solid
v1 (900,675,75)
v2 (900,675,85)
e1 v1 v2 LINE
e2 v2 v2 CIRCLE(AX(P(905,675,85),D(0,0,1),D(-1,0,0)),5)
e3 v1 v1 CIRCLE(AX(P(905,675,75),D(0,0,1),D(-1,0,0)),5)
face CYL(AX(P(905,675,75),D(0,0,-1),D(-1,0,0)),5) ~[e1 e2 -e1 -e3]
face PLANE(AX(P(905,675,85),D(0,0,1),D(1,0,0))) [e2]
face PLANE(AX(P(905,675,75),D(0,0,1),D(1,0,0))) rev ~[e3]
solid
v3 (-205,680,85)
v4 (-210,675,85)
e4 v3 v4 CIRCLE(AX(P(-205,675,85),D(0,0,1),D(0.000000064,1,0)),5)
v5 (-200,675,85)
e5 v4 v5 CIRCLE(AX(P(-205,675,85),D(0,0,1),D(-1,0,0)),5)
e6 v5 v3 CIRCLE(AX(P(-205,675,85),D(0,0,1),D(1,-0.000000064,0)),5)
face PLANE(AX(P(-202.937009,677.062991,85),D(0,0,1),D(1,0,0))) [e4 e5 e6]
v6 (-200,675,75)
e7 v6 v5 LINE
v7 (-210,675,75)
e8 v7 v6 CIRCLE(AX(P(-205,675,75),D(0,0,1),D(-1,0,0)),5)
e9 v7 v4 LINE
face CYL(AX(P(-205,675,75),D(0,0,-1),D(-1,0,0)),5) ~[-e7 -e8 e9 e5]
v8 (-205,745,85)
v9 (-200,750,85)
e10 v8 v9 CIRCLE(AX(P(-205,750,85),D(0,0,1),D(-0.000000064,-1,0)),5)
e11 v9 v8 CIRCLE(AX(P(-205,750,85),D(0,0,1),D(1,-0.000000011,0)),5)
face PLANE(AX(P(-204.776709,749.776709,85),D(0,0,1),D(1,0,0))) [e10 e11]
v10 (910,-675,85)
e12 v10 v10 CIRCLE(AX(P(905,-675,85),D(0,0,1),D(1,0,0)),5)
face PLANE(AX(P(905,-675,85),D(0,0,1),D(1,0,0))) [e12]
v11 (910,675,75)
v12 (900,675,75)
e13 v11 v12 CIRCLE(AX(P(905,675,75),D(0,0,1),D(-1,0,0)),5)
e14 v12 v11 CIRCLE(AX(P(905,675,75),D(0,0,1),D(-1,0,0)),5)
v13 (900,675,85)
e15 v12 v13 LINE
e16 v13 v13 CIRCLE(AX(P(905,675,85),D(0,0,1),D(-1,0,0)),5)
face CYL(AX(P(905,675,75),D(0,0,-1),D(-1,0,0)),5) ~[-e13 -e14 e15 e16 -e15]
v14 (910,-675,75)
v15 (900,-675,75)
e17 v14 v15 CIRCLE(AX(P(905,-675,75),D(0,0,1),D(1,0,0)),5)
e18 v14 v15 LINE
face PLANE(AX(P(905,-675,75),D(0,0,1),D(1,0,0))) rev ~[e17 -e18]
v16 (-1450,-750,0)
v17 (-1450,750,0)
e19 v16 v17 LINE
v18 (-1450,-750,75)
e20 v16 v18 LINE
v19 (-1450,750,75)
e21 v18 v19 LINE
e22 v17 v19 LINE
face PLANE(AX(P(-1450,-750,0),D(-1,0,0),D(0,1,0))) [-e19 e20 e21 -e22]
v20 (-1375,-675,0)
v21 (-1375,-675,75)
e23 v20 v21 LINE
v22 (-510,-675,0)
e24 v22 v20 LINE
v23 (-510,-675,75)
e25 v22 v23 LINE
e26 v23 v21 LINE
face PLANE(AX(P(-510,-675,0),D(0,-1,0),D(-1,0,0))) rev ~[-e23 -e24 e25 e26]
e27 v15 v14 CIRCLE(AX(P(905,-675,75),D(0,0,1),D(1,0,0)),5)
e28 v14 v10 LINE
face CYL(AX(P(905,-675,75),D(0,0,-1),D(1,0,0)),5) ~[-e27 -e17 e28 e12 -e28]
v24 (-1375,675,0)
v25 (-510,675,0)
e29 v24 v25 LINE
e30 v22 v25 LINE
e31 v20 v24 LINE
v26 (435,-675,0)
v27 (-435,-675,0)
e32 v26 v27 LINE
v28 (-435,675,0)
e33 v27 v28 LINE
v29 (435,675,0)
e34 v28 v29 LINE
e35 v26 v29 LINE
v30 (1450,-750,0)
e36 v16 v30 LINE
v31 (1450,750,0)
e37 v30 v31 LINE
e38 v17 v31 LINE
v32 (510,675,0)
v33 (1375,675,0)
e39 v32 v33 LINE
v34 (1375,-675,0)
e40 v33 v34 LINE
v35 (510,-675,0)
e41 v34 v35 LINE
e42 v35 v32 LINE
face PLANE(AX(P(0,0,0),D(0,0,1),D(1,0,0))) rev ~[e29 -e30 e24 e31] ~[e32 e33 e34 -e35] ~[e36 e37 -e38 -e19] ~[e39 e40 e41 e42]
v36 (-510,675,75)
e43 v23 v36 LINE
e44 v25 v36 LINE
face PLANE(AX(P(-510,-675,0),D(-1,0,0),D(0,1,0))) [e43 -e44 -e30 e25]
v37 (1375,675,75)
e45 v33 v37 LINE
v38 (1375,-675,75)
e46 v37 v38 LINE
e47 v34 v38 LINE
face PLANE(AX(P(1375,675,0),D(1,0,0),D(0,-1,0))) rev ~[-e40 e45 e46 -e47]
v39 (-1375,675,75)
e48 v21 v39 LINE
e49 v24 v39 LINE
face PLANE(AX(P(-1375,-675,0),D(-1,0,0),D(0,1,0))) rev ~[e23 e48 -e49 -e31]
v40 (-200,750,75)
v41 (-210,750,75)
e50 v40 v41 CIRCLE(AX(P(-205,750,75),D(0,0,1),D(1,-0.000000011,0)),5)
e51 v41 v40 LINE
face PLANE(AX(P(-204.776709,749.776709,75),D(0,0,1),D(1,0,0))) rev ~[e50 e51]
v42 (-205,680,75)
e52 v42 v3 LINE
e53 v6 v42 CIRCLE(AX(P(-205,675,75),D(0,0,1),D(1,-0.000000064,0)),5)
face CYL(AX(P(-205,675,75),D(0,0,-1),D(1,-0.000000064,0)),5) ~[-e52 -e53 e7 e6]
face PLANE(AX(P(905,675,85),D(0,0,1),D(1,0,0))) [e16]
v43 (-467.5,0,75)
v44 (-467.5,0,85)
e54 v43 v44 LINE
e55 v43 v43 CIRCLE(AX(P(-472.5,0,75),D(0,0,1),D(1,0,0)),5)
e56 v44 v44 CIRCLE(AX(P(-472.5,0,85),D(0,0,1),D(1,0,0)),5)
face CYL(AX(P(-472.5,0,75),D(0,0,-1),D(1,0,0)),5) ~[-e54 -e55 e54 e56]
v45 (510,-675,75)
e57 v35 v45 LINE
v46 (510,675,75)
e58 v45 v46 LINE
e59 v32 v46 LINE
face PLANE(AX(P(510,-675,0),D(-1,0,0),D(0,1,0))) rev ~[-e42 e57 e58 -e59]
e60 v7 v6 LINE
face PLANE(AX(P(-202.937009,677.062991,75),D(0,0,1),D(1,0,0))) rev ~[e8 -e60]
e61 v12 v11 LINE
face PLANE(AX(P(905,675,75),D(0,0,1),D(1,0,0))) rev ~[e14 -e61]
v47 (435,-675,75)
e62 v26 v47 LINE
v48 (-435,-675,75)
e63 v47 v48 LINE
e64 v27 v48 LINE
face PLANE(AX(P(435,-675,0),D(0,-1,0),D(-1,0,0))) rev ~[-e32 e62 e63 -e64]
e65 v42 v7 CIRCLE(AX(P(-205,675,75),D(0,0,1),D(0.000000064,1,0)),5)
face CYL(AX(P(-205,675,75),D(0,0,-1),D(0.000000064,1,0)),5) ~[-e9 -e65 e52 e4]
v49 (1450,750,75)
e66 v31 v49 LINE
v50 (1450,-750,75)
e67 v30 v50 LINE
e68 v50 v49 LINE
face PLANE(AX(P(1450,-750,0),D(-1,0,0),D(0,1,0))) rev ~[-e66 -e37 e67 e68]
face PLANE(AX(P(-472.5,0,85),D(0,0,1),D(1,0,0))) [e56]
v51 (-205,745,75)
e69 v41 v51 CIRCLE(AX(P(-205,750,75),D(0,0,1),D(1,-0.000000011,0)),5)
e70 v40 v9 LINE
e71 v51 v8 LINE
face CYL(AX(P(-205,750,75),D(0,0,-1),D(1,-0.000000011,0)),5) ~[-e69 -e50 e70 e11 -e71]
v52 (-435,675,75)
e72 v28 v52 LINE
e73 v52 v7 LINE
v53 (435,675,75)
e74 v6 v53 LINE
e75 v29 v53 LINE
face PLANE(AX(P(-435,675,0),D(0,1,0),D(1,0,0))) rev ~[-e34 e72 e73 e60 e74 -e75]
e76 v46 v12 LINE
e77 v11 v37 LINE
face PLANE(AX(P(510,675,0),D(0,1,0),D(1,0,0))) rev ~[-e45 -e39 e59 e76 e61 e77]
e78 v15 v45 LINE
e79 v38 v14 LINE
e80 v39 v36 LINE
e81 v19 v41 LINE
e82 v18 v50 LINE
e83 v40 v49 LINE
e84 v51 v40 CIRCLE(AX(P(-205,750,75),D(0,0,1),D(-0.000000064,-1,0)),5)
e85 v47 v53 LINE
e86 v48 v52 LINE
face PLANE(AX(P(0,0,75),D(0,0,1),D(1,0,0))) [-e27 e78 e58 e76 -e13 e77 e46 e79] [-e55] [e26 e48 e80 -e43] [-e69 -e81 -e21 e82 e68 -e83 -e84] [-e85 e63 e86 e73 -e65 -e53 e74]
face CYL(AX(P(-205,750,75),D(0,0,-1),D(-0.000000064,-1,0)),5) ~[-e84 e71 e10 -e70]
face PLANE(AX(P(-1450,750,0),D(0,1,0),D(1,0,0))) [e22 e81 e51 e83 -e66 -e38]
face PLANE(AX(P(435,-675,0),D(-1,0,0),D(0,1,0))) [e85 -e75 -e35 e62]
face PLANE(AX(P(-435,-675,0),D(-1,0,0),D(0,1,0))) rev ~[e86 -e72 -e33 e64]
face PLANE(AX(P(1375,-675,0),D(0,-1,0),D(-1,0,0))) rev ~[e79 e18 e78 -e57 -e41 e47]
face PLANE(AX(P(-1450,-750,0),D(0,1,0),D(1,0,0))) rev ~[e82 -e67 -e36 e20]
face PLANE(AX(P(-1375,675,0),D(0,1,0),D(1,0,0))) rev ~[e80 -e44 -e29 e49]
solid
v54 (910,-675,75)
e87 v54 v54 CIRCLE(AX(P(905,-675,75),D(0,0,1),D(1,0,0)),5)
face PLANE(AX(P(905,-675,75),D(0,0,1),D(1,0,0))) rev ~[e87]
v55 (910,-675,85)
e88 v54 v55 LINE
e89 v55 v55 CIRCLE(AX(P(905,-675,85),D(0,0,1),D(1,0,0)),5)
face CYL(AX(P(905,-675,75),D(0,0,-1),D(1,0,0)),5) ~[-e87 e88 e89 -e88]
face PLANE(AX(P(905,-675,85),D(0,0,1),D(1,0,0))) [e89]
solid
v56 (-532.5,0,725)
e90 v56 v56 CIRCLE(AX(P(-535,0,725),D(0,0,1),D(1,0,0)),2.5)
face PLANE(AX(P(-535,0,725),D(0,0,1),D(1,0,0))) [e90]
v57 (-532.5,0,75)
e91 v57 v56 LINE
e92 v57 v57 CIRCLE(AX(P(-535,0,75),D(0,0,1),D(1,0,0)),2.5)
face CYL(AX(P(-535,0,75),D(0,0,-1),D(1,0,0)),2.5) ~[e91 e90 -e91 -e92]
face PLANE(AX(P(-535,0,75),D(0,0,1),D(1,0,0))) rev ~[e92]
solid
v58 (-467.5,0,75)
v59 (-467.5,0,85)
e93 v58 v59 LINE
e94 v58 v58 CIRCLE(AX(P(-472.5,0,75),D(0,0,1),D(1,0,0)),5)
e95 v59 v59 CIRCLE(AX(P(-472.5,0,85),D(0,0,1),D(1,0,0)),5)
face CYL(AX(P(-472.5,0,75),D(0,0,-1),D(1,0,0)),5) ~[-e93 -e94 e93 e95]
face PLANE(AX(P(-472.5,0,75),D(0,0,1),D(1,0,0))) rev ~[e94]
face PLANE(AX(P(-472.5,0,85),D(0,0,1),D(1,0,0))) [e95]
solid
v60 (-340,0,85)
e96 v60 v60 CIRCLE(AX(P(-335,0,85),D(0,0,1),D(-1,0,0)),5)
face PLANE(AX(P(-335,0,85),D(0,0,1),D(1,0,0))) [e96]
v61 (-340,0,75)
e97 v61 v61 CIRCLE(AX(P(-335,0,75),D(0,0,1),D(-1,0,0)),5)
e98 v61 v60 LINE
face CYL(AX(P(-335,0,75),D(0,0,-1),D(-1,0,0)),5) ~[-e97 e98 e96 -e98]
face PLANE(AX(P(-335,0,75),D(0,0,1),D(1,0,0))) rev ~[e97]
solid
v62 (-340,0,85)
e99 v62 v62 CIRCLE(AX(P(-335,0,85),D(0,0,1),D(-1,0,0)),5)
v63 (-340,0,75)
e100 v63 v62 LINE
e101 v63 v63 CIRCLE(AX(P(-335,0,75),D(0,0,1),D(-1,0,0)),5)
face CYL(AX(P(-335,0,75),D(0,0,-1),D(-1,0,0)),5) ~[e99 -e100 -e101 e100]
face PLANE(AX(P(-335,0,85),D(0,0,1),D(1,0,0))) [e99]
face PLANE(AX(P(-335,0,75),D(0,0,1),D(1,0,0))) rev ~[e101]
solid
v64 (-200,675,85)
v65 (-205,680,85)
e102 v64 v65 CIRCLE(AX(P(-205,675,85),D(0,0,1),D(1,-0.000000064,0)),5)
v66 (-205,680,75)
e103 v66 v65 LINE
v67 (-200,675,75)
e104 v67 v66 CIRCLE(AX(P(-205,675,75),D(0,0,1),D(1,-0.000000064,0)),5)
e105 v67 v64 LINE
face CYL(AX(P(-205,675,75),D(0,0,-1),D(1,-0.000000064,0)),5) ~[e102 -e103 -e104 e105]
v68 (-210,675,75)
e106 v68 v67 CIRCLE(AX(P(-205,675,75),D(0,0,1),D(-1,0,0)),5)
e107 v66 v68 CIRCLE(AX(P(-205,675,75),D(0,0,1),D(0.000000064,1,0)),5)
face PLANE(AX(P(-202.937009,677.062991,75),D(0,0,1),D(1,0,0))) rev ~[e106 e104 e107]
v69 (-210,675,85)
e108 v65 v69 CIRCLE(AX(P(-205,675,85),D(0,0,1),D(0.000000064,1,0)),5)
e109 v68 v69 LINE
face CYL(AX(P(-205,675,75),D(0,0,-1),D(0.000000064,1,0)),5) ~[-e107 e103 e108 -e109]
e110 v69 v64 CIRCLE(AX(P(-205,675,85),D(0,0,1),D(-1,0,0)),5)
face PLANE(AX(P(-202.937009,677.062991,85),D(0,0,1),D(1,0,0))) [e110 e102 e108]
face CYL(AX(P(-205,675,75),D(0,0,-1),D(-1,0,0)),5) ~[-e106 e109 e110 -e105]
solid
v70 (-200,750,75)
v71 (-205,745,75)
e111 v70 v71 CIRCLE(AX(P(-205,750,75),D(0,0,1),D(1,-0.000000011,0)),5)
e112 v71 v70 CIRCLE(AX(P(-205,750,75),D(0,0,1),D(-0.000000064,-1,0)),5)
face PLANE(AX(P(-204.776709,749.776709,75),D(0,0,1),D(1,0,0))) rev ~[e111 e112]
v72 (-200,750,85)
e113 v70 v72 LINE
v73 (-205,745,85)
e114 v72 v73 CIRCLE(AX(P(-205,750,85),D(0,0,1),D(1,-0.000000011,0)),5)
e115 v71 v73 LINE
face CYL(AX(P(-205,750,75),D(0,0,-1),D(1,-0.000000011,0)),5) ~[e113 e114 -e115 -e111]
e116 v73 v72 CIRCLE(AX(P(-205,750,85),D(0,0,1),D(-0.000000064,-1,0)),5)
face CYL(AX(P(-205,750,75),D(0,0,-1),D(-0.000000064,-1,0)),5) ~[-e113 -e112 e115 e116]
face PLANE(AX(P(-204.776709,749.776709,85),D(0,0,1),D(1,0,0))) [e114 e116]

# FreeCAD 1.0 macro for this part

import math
import FreeCAD as App
import Part
import Sketcher
from FreeCAD import Vector
Q = App.Units.Quantity


def add_polygon(sketch, points):
    """Adds a closed chain of lines whose ends are joined by coincident constraints."""
    first, n = sketch.GeometryCount, len(points)
    for a, b in zip(points, points[1:] + points[:1]):
        sketch.addGeometry(Part.LineSegment(App.Vector(*a, 0), App.Vector(*b, 0)), False)
    for i in range(n):
        sketch.addConstraint(Sketcher.Constraint("Coincident", first + i, 2, first + (i + 1) % n, 1))

doc = App.newDocument("Part")
body = doc.addObject("PartDesign::Body", "Body")
body.AllowCompound = True

sketch1 = body.newObject("Sketcher::SketchObject", "Sketch")
sketch1.AttachmentSupport = (doc.getObject("XY_Plane"), [""])
sketch1.MapMode = "FlatFace"
add_polygon(sketch1, [(-1450, 750), (-1450, -750), (1450, -750), (1450, 750)])
add_polygon(sketch1, [(1375, -675), (510, -675), (510, 675), (1375, 675)])
add_polygon(sketch1, [(435, -675), (-435, -675), (-435, 675), (435, 675)])
add_polygon(sketch1, [(-510, -675), (-1375, -675), (-1375, 675), (-510, 675)])
sketch1.addConstraint(Sketcher.Constraint("Vertical", 0))
sketch1.addConstraint(Sketcher.Constraint("Horizontal", 1))
sketch1.addConstraint(Sketcher.Constraint("Vertical", 2))
sketch1.addConstraint(Sketcher.Constraint("Horizontal", 3))
sketch1.addConstraint(Sketcher.Constraint("Horizontal", 4))
sketch1.addConstraint(Sketcher.Constraint("Vertical", 5))
sketch1.addConstraint(Sketcher.Constraint("Horizontal", 6))
sketch1.addConstraint(Sketcher.Constraint("Vertical", 7))
sketch1.addConstraint(Sketcher.Constraint("Horizontal", 8))
sketch1.addConstraint(Sketcher.Constraint("Vertical", 9))
sketch1.addConstraint(Sketcher.Constraint("Horizontal", 10))
sketch1.addConstraint(Sketcher.Constraint("Vertical", 11))
sketch1.addConstraint(Sketcher.Constraint("Horizontal", 12))
sketch1.addConstraint(Sketcher.Constraint("Vertical", 13))
sketch1.addConstraint(Sketcher.Constraint("Horizontal", 14))
sketch1.addConstraint(Sketcher.Constraint("Vertical", 15))
sketch1.addConstraint(Sketcher.Constraint("Symmetric", 0, 2, 2, 2, -1, 1))
sketch1.addConstraint(Sketcher.Constraint("Symmetric", 8, 2, 10, 2, -1, 1))
sketch1.addConstraint(Sketcher.Constraint("Symmetric", 6, 2, 12, 2, -1, 1))
sketch1.addConstraint(Sketcher.Constraint("Symmetric", 4, 2, 14, 2, -1, 1))
sketch1.addConstraint(Sketcher.Constraint("Horizontal", 7, 2, 8, 2))
sketch1.addConstraint(Sketcher.Constraint("Horizontal", 6, 2, 9, 2))
sketch1.addConstraint(Sketcher.Constraint("DistanceX", 1, 1, 1, 2, Q("2900 mm")))
sketch1.addConstraint(Sketcher.Constraint("DistanceX", 4, 2, 4, 1, Q("865 mm")))
sketch1.addConstraint(Sketcher.Constraint("DistanceX", 8, 2, 8, 1, Q("870 mm")))
sketch1.addConstraint(Sketcher.Constraint("DistanceY", 0, 2, 0, 1, Q("1500 mm")))
sketch1.addConstraint(Sketcher.Constraint("DistanceY", 5, 1, 5, 2, Q("1350 mm")))
sketch1.addConstraint(Sketcher.Constraint("DistanceX", -1, 1, 4, 2, Q("510 mm")))
pad1 = body.newObject("PartDesign::Pad", "Pad")
pad1.Profile = sketch1
pad1.Length = 75

sketch2 = body.newObject("Sketcher::SketchObject", "Sketch001")
sketch2.AttachmentSupport = (doc.getObject("XY_Plane"), [""])
sketch2.MapMode = "FlatFace"
sketch2.AttachmentOffset = App.Placement(Vector(0, 0, 75), App.Rotation())
sketch2.addGeometry(Part.Circle(Vector(-472.5, 0, 0), Vector(0, 0, 1), 5), False)
sketch2.addGeometry(Part.Circle(Vector(-335, 0, 0), Vector(0, 0, 1), 5), False)
sketch2.addGeometry(Part.ArcOfCircle(Part.Circle(Vector(-205, 675, 0), Vector(0, 0, 1), 5), math.radians(180), math.radians(360)), False)
sketch2.addGeometry(Part.ArcOfCircle(Part.Circle(Vector(-205, 675, 0), Vector(0, 0, 1), 5), math.radians(0), math.radians(90)), False)
sketch2.addGeometry(Part.ArcOfCircle(Part.Circle(Vector(-205, 675, 0), Vector(0, 0, 1), 5), math.radians(90), math.radians(180)), False)
sketch2.addGeometry(Part.Circle(Vector(905, 675, 0), Vector(0, 0, 1), 5), False)
sketch2.addGeometry(Part.ArcOfCircle(Part.Circle(Vector(-205, 750, 0), Vector(0, 0, 1), 5), math.radians(0), math.radians(270)), False)
sketch2.addGeometry(Part.ArcOfCircle(Part.Circle(Vector(-205, 750, 0), Vector(0, 0, 1), 5), math.radians(-90), math.radians(0)), False)
sketch2.addGeometry(Part.Circle(Vector(905, -675, 0), Vector(0, 0, 1), 5), False)
sketch2.addConstraint(Sketcher.Constraint("Tangent", 2, 2, 3, 1))
sketch2.addConstraint(Sketcher.Constraint("Tangent", 3, 2, 4, 1))
sketch2.addConstraint(Sketcher.Constraint("Tangent", 4, 2, 2, 1))
sketch2.addConstraint(Sketcher.Constraint("Tangent", 6, 1, 7, 2))
sketch2.addConstraint(Sketcher.Constraint("Coincident", 7, 1, 6, 2))
sketch2.addConstraint(Sketcher.Constraint("Equal", 0, 1))
sketch2.addConstraint(Sketcher.Constraint("Equal", 1, 2))
sketch2.addConstraint(Sketcher.Constraint("Equal", 4, 5))
sketch2.addConstraint(Sketcher.Constraint("Equal", 5, 6))
sketch2.addConstraint(Sketcher.Constraint("Equal", 7, 8))
sketch2.addConstraint(Sketcher.Constraint("Symmetric", 5, 3, 8, 3, -1))
sketch2.addConstraint(Sketcher.Constraint("PointOnObject", 0, 3, -1))
sketch2.addConstraint(Sketcher.Constraint("PointOnObject", 1, 3, -1))
sketch2.addConstraint(Sketcher.Constraint("Horizontal", 4, 3, 5, 3))
sketch2.addConstraint(Sketcher.Constraint("Horizontal", 5, 3, 2, 2))
sketch2.addConstraint(Sketcher.Constraint("Horizontal", 2, 2, 4, 2))
sketch2.addConstraint(Sketcher.Constraint("Horizontal", 7, 3, 6, 1))
sketch2.addConstraint(Sketcher.Constraint("Vertical", 4, 3, 6, 3))
sketch2.addConstraint(Sketcher.Constraint("Vertical", 7, 3, 3, 2))
sketch2.addConstraint(Sketcher.Constraint("Vertical", 3, 2, 7, 1))
sketch2.addConstraint(Sketcher.Constraint("Diameter", 0, Q("10 mm")))
sketch2.addConstraint(Sketcher.Constraint("DistanceX", 1, 3, -1, 1, Q("335 mm")))
sketch2.addConstraint(Sketcher.Constraint("DistanceX", 2, 3, -1, 1, Q("205 mm")))
sketch2.addConstraint(Sketcher.Constraint("DistanceY", -1, 1, 2, 3, Q("675 mm")))
sketch2.addConstraint(Sketcher.Constraint("DistanceX", -1, 1, 5, 3, Q("905 mm")))
sketch2.addConstraint(Sketcher.Constraint("DistanceY", -1, 1, 6, 3, Q("750 mm")))
sketch2.addConstraint(Sketcher.Constraint("DistanceX", 0, 3, -1, 1, Q("472.5 mm")))
pad2 = body.newObject("PartDesign::Pad", "Pad001")
pad2.Profile = sketch2
pad2.Length = 10
body2 = doc.addObject("PartDesign::Body", "Body001")
body2.AllowCompound = True

sketch3 = body2.newObject("Sketcher::SketchObject", "Sketch002")
sketch3.AttachmentSupport = (doc.getObject("XY_Plane001"), [""])
sketch3.MapMode = "FlatFace"
sketch3.AttachmentOffset = App.Placement(Vector(0, 0, 75), App.Rotation())
sketch3.addGeometry(Part.Circle(Vector(-472.5, 0, 0), Vector(0, 0, 1), 5), False)
sketch3.addGeometry(Part.Circle(Vector(-335, 0, 0), Vector(0, 0, 1), 5), False)
sketch3.addGeometry(Part.ArcOfCircle(Part.Circle(Vector(-205, 675, 0), Vector(0, 0, 1), 5), math.radians(180), math.radians(360)), False)
sketch3.addGeometry(Part.ArcOfCircle(Part.Circle(Vector(-205, 675, 0), Vector(0, 0, 1), 5), math.radians(0), math.radians(90)), False)
sketch3.addGeometry(Part.ArcOfCircle(Part.Circle(Vector(-205, 675, 0), Vector(0, 0, 1), 5), math.radians(90), math.radians(180)), False)
sketch3.addGeometry(Part.Circle(Vector(905, 675, 0), Vector(0, 0, 1), 5), False)
sketch3.addGeometry(Part.ArcOfCircle(Part.Circle(Vector(-205, 750, 0), Vector(0, 0, 1), 5), math.radians(0), math.radians(270)), False)
sketch3.addGeometry(Part.ArcOfCircle(Part.Circle(Vector(-205, 750, 0), Vector(0, 0, 1), 5), math.radians(-90), math.radians(0)), False)
sketch3.addGeometry(Part.Circle(Vector(905, -675, 0), Vector(0, 0, 1), 5), False)
sketch3.addConstraint(Sketcher.Constraint("Tangent", 2, 2, 3, 1))
sketch3.addConstraint(Sketcher.Constraint("Tangent", 3, 2, 4, 1))
sketch3.addConstraint(Sketcher.Constraint("Tangent", 4, 2, 2, 1))
sketch3.addConstraint(Sketcher.Constraint("Tangent", 6, 1, 7, 2))
sketch3.addConstraint(Sketcher.Constraint("Coincident", 7, 1, 6, 2))
sketch3.addConstraint(Sketcher.Constraint("Equal", 0, 1))
sketch3.addConstraint(Sketcher.Constraint("Equal", 1, 2))
sketch3.addConstraint(Sketcher.Constraint("Equal", 4, 5))
sketch3.addConstraint(Sketcher.Constraint("Equal", 5, 6))
sketch3.addConstraint(Sketcher.Constraint("Equal", 7, 8))
sketch3.addConstraint(Sketcher.Constraint("Symmetric", 5, 3, 8, 3, -1))
sketch3.addConstraint(Sketcher.Constraint("PointOnObject", 0, 3, -1))
sketch3.addConstraint(Sketcher.Constraint("PointOnObject", 1, 3, -1))
sketch3.addConstraint(Sketcher.Constraint("Horizontal", 4, 3, 5, 3))
sketch3.addConstraint(Sketcher.Constraint("Horizontal", 5, 3, 2, 2))
sketch3.addConstraint(Sketcher.Constraint("Horizontal", 2, 2, 4, 2))
sketch3.addConstraint(Sketcher.Constraint("Horizontal", 7, 3, 6, 1))
sketch3.addConstraint(Sketcher.Constraint("Vertical", 4, 3, 6, 3))
sketch3.addConstraint(Sketcher.Constraint("Vertical", 7, 3, 3, 2))
sketch3.addConstraint(Sketcher.Constraint("Vertical", 3, 2, 7, 1))
sketch3.addConstraint(Sketcher.Constraint("Diameter", 0, Q("10 mm")))
sketch3.addConstraint(Sketcher.Constraint("DistanceX", 1, 3, -1, 1, Q("335 mm")))
sketch3.addConstraint(Sketcher.Constraint("DistanceX", 2, 3, -1, 1, Q("205 mm")))
sketch3.addConstraint(Sketcher.Constraint("DistanceY", -1, 1, 2, 3, Q("675 mm")))
sketch3.addConstraint(Sketcher.Constraint("DistanceX", -1, 1, 5, 3, Q("905 mm")))
sketch3.addConstraint(Sketcher.Constraint("DistanceY", -1, 1, 6, 3, Q("750 mm")))
sketch3.addConstraint(Sketcher.Constraint("DistanceX", 0, 3, -1, 1, Q("472.5 mm")))
pad3 = body2.newObject("PartDesign::Pad", "Pad002")
pad3.Profile = sketch3
pad3.Length = 10
body3 = doc.addObject("PartDesign::Body", "Body002")

sketch4 = body3.newObject("Sketcher::SketchObject", "Sketch003")
sketch4.AttachmentSupport = (doc.getObject("XY_Plane002"), [""])
sketch4.MapMode = "FlatFace"
sketch4.AttachmentOffset = App.Placement(Vector(0, 0, 75), App.Rotation())
sketch4.addGeometry(Part.Circle(Vector(-535, 0, 0), Vector(0, 0, 1), 2.5), False)
sketch4.addConstraint(Sketcher.Constraint("PointOnObject", 0, 3, -1))
sketch4.addConstraint(Sketcher.Constraint("Diameter", 0, Q("5 mm")))
sketch4.addConstraint(Sketcher.Constraint("DistanceX", 0, 3, -1, 1, Q("535 mm")))
pad4 = body3.newObject("PartDesign::Pad", "Pad003")
pad4.Profile = sketch4
pad4.Length = 650

doc.recompute()
